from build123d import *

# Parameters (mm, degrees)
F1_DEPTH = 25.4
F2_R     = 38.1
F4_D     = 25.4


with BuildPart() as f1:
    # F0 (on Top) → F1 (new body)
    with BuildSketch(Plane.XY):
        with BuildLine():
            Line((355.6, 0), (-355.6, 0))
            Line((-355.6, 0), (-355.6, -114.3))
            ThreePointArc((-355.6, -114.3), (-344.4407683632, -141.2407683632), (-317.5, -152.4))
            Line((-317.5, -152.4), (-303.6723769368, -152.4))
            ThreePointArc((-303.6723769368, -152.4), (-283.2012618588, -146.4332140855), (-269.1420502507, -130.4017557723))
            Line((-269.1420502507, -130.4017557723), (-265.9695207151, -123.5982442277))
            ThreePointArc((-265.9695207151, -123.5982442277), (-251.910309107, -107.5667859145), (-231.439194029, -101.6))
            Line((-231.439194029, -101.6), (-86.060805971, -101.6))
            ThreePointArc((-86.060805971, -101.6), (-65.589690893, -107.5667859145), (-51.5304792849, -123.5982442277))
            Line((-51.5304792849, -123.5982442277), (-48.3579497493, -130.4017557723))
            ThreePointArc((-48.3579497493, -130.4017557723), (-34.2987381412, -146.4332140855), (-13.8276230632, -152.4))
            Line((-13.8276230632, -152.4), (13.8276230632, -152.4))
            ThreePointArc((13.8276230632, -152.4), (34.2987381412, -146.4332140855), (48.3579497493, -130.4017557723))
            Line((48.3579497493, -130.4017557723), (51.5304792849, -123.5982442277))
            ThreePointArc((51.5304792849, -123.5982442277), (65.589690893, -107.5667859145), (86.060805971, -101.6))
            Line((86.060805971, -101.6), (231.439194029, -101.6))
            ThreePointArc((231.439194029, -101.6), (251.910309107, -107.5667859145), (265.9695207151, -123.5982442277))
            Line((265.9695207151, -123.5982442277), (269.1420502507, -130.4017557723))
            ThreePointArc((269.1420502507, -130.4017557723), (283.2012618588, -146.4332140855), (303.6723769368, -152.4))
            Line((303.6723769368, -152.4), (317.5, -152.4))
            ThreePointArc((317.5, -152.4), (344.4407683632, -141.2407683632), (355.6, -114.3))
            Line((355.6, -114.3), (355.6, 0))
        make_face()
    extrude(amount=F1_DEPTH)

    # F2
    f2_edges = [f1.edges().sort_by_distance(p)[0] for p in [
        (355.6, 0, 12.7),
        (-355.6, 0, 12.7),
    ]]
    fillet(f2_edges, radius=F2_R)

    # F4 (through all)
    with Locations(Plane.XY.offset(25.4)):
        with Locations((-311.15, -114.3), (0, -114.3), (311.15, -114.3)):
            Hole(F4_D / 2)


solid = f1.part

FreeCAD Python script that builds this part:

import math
import FreeCAD as App
import Part
import Sketcher
Q = App.Units.Quantity


def edges_at(feature, points):
    """Names of the edges that pass closest to the given points."""
    edges = feature.Shape.Edges
    near = lambda p: min(range(len(edges)), key=lambda i: edges[i].distToShape(Part.Vertex(*p))[0])
    return sorted({f"Edge{near(p) + 1}" for p in points})

doc = App.newDocument("Part")
body = doc.addObject("PartDesign::Body", "Body")

sketch1 = body.newObject("Sketcher::SketchObject", "Sketch")
sketch1.AttachmentSupport = (doc.getObject("XY_Plane"), [""])
sketch1.MapMode = "FlatFace"
sketch1.addGeometry(Part.LineSegment(App.Vector(356, 0, 0), App.Vector(-356, 0, 0)), False)
sketch1.addGeometry(Part.LineSegment(App.Vector(-356, 0, 0), App.Vector(-356, -114, 0)), False)
sketch1.addGeometry(Part.ArcOfCircle(Part.Circle(App.Vector(-318, -114, 0), App.Vector(0, 0, 1), 38), math.radians(180), math.radians(270)), False)
sketch1.addGeometry(Part.LineSegment(App.Vector(-318, -152, 0), App.Vector(-304, -152, 0)), False)
sketch1.addGeometry(Part.ArcOfCircle(Part.Circle(App.Vector(-304, -114, 0), App.Vector(0, 0, 1), 38), math.radians(-90), math.radians(-25)), False)
sketch1.addGeometry(Part.LineSegment(App.Vector(-269, -130, 0), App.Vector(-266, -124, 0)), False)
sketch1.addGeometry(Part.ArcOfCircle(Part.Circle(App.Vector(-231, -140, 0), App.Vector(0, 0, 1), 38), math.radians(90), math.radians(155)), False)
sketch1.addGeometry(Part.LineSegment(App.Vector(-231, -102, 0), App.Vector(-86, -102, 0)), False)
sketch1.addGeometry(Part.ArcOfCircle(Part.Circle(App.Vector(-86, -140, 0), App.Vector(0, 0, 1), 38), math.radians(25), math.radians(90)), False)
sketch1.addGeometry(Part.LineSegment(App.Vector(-52, -124, 0), App.Vector(-48, -130, 0)), False)
sketch1.addGeometry(Part.ArcOfCircle(Part.Circle(App.Vector(-14, -114, 0), App.Vector(0, 0, 1), 38), math.radians(-155), math.radians(-90)), False)
sketch1.addGeometry(Part.LineSegment(App.Vector(-14, -152, 0), App.Vector(14, -152, 0)), False)
sketch1.addGeometry(Part.ArcOfCircle(Part.Circle(App.Vector(14, -114, 0), App.Vector(0, 0, 1), 38), math.radians(-90), math.radians(-25)), False)
sketch1.addGeometry(Part.LineSegment(App.Vector(48, -130, 0), App.Vector(52, -124, 0)), False)
sketch1.addGeometry(Part.ArcOfCircle(Part.Circle(App.Vector(86, -140, 0), App.Vector(0, 0, 1), 38), math.radians(90), math.radians(155)), False)
sketch1.addGeometry(Part.LineSegment(App.Vector(86, -102, 0), App.Vector(231, -102, 0)), False)
sketch1.addGeometry(Part.ArcOfCircle(Part.Circle(App.Vector(231, -140, 0), App.Vector(0, 0, 1), 38), math.radians(25), math.radians(90)), False)
sketch1.addGeometry(Part.LineSegment(App.Vector(266, -124, 0), App.Vector(269, -130, 0)), False)
sketch1.addGeometry(Part.ArcOfCircle(Part.Circle(App.Vector(304, -114, 0), App.Vector(0, 0, 1), 38), math.radians(-155), math.radians(-90)), False)
sketch1.addGeometry(Part.LineSegment(App.Vector(304, -152, 0), App.Vector(318, -152, 0)), False)
sketch1.addGeometry(Part.ArcOfCircle(Part.Circle(App.Vector(318, -114, 0), App.Vector(0, 0, 1), 38), math.radians(-90), math.radians(0)), False)
sketch1.addGeometry(Part.LineSegment(App.Vector(356, -114, 0), App.Vector(356, 0, 0)), False)
sketch1.addConstraint(Sketcher.Constraint("Coincident", 0, 2, 1, 1))
sketch1.addConstraint(Sketcher.Constraint("Tangent", 1, 2, 2, 1))
sketch1.addConstraint(Sketcher.Constraint("Tangent", 2, 2, 3, 1))
sketch1.addConstraint(Sketcher.Constraint("Tangent", 3, 2, 4, 1))
sketch1.addConstraint(Sketcher.Constraint("Tangent", 4, 2, 5, 1))
sketch1.addConstraint(Sketcher.Constraint("Tangent", 5, 2, 6, 2))
sketch1.addConstraint(Sketcher.Constraint("Tangent", 6, 1, 7, 1))
sketch1.addConstraint(Sketcher.Constraint("Tangent", 7, 2, 8, 2))
sketch1.addConstraint(Sketcher.Constraint("Tangent", 8, 1, 9, 1))
sketch1.addConstraint(Sketcher.Constraint("Tangent", 9, 2, 10, 1))
sketch1.addConstraint(Sketcher.Constraint("Tangent", 10, 2, 11, 1))
sketch1.addConstraint(Sketcher.Constraint("Tangent", 11, 2, 12, 1))
sketch1.addConstraint(Sketcher.Constraint("Tangent", 12, 2, 13, 1))
sketch1.addConstraint(Sketcher.Constraint("Tangent", 13, 2, 14, 2))
sketch1.addConstraint(Sketcher.Constraint("Tangent", 14, 1, 15, 1))
sketch1.addConstraint(Sketcher.Constraint("Tangent", 15, 2, 16, 2))
sketch1.addConstraint(Sketcher.Constraint("Tangent", 16, 1, 17, 1))
sketch1.addConstraint(Sketcher.Constraint("Tangent", 17, 2, 18, 1))
sketch1.addConstraint(Sketcher.Constraint("Tangent", 18, 2, 19, 1))
sketch1.addConstraint(Sketcher.Constraint("Tangent", 19, 2, 20, 1))
sketch1.addConstraint(Sketcher.Constraint("Tangent", 20, 2, 21, 1))
sketch1.addConstraint(Sketcher.Constraint("Coincident", 21, 2, 0, 1))
sketch1.addConstraint(Sketcher.Constraint("Horizontal", 0))
sketch1.addConstraint(Sketcher.Constraint("Vertical", 1))
sketch1.addConstraint(Sketcher.Constraint("Horizontal", 3))
sketch1.addConstraint(Sketcher.Constraint("Horizontal", 7))
sketch1.addConstraint(Sketcher.Constraint("Horizontal", 11))
sketch1.addConstraint(Sketcher.Constraint("Horizontal", 15))
sketch1.addConstraint(Sketcher.Constraint("Horizontal", 19))
sketch1.addConstraint(Sketcher.Constraint("Vertical", 21))
sketch1.addConstraint(Sketcher.Constraint("Equal", 2, 4))
sketch1.addConstraint(Sketcher.Constraint("Equal", 4, 6))
sketch1.addConstraint(Sketcher.Constraint("Equal", 6, 8))
sketch1.addConstraint(Sketcher.Constraint("Equal", 8, 10))
sketch1.addConstraint(Sketcher.Constraint("Equal", 10, 12))
sketch1.addConstraint(Sketcher.Constraint("Equal", 12, 14))
sketch1.addConstraint(Sketcher.Constraint("Equal", 14, 16))
sketch1.addConstraint(Sketcher.Constraint("Equal", 16, 18))
sketch1.addConstraint(Sketcher.Constraint("Equal", 18, 20))
sketch1.addConstraint(Sketcher.Constraint("Symmetric", 0, 2, 21, 2, -1, 1))
sketch1.addConstraint(Sketcher.Constraint("Symmetric", 8, 3, 14, 3, -2))
sketch1.addConstraint(Sketcher.Constraint("Symmetric", 4, 3, 18, 3, -2))
sketch1.addConstraint(Sketcher.Constraint("Parallel", 5, 13))
sketch1.addConstraint(Sketcher.Constraint("Parallel", 9, 17))
sketch1.addConstraint(Sketcher.Constraint("Horizontal", 4, 3, 10, 3))
sketch1.addConstraint(Sketcher.Constraint("Horizontal", 5, 2, 8, 1))
sketch1.addConstraint(Sketcher.Constraint("Radius", 2, Q("1.5 in")))
sketch1.addConstraint(Sketcher.Constraint("DistanceX", 0, 2, 0, 1, Q("28 in")))
sketch1.addConstraint(Sketcher.Constraint("DistanceY", 1, 2, 1, 1, Q("4.5 in")))
sketch1.addConstraint(Sketcher.Constraint("DistanceY", 6, 1, -1, 1, Q("4 in")))
sketch1.addConstraint(Sketcher.Constraint("Angle", 5, Q("65 deg")))
sketch1.addConstraint(Sketcher.Constraint("DistanceX", 4, 3, 12, 3, Q("12.5 in")))
sketch1.addConstraint(Sketcher.Constraint("DistanceX", 7, 1, 7, 2, Q("145.378388 mm")))
pad1 = body.newObject("PartDesign::Pad", "Pad")
pad1.Profile = sketch1
pad1.Length = Q("1 in")
doc.recompute()

fillet = body.newObject("PartDesign::Fillet", "Fillet")
fillet.Base = (pad1, edges_at(pad1, [(355.6, 0, 12.7), (-355.6, 0, 12.7)]))
fillet.Radius = Q("1.5 in")

sketch2 = body.newObject("Sketcher::SketchObject", "Sketch001")
sketch2.AttachmentSupport = (doc.getObject("XY_Plane"), [""])
sketch2.MapMode = "FlatFace"
sketch2.AttachmentOffset = App.Placement(App.Vector(0, 0, 1 * 25.4), App.Rotation())
sketch2.addGeometry(Part.Circle(App.Vector(-311, -114, 0), App.Vector(0, 0, 1), 13), False)
sketch2.addGeometry(Part.Circle(App.Vector(0, -114, 0), App.Vector(0, 0, 1), 13), False)
sketch2.addGeometry(Part.Circle(App.Vector(311, -114, 0), App.Vector(0, 0, 1), 13), False)
sketch2.addConstraint(Sketcher.Constraint("Equal", 0, 1))
sketch2.addConstraint(Sketcher.Constraint("Equal", 1, 2))
sketch2.addConstraint(Sketcher.Constraint("Symmetric", 0, 3, 2, 3, -2))
sketch2.addConstraint(Sketcher.Constraint("PointOnObject", 1, 3, -2))
sketch2.addConstraint(Sketcher.Constraint("Horizontal", 0, 3, 1, 3))
sketch2.addConstraint(Sketcher.Constraint("Diameter", 0, Q("1 in")))
sketch2.addConstraint(Sketcher.Constraint("DistanceY", 0, 3, -1, 1, Q("4.5 in")))
sketch2.addConstraint(Sketcher.Constraint("DistanceX", 0, 3, 2, 3, Q("24.5 in")))
doc.recompute()
hole = body.newObject("PartDesign::Hole", "Hole")
hole.Profile = sketch2
hole.ThreadType = "None"
hole.Diameter = Q("1 in")
hole.DepthType = "ThroughAll"

doc.recompute()
